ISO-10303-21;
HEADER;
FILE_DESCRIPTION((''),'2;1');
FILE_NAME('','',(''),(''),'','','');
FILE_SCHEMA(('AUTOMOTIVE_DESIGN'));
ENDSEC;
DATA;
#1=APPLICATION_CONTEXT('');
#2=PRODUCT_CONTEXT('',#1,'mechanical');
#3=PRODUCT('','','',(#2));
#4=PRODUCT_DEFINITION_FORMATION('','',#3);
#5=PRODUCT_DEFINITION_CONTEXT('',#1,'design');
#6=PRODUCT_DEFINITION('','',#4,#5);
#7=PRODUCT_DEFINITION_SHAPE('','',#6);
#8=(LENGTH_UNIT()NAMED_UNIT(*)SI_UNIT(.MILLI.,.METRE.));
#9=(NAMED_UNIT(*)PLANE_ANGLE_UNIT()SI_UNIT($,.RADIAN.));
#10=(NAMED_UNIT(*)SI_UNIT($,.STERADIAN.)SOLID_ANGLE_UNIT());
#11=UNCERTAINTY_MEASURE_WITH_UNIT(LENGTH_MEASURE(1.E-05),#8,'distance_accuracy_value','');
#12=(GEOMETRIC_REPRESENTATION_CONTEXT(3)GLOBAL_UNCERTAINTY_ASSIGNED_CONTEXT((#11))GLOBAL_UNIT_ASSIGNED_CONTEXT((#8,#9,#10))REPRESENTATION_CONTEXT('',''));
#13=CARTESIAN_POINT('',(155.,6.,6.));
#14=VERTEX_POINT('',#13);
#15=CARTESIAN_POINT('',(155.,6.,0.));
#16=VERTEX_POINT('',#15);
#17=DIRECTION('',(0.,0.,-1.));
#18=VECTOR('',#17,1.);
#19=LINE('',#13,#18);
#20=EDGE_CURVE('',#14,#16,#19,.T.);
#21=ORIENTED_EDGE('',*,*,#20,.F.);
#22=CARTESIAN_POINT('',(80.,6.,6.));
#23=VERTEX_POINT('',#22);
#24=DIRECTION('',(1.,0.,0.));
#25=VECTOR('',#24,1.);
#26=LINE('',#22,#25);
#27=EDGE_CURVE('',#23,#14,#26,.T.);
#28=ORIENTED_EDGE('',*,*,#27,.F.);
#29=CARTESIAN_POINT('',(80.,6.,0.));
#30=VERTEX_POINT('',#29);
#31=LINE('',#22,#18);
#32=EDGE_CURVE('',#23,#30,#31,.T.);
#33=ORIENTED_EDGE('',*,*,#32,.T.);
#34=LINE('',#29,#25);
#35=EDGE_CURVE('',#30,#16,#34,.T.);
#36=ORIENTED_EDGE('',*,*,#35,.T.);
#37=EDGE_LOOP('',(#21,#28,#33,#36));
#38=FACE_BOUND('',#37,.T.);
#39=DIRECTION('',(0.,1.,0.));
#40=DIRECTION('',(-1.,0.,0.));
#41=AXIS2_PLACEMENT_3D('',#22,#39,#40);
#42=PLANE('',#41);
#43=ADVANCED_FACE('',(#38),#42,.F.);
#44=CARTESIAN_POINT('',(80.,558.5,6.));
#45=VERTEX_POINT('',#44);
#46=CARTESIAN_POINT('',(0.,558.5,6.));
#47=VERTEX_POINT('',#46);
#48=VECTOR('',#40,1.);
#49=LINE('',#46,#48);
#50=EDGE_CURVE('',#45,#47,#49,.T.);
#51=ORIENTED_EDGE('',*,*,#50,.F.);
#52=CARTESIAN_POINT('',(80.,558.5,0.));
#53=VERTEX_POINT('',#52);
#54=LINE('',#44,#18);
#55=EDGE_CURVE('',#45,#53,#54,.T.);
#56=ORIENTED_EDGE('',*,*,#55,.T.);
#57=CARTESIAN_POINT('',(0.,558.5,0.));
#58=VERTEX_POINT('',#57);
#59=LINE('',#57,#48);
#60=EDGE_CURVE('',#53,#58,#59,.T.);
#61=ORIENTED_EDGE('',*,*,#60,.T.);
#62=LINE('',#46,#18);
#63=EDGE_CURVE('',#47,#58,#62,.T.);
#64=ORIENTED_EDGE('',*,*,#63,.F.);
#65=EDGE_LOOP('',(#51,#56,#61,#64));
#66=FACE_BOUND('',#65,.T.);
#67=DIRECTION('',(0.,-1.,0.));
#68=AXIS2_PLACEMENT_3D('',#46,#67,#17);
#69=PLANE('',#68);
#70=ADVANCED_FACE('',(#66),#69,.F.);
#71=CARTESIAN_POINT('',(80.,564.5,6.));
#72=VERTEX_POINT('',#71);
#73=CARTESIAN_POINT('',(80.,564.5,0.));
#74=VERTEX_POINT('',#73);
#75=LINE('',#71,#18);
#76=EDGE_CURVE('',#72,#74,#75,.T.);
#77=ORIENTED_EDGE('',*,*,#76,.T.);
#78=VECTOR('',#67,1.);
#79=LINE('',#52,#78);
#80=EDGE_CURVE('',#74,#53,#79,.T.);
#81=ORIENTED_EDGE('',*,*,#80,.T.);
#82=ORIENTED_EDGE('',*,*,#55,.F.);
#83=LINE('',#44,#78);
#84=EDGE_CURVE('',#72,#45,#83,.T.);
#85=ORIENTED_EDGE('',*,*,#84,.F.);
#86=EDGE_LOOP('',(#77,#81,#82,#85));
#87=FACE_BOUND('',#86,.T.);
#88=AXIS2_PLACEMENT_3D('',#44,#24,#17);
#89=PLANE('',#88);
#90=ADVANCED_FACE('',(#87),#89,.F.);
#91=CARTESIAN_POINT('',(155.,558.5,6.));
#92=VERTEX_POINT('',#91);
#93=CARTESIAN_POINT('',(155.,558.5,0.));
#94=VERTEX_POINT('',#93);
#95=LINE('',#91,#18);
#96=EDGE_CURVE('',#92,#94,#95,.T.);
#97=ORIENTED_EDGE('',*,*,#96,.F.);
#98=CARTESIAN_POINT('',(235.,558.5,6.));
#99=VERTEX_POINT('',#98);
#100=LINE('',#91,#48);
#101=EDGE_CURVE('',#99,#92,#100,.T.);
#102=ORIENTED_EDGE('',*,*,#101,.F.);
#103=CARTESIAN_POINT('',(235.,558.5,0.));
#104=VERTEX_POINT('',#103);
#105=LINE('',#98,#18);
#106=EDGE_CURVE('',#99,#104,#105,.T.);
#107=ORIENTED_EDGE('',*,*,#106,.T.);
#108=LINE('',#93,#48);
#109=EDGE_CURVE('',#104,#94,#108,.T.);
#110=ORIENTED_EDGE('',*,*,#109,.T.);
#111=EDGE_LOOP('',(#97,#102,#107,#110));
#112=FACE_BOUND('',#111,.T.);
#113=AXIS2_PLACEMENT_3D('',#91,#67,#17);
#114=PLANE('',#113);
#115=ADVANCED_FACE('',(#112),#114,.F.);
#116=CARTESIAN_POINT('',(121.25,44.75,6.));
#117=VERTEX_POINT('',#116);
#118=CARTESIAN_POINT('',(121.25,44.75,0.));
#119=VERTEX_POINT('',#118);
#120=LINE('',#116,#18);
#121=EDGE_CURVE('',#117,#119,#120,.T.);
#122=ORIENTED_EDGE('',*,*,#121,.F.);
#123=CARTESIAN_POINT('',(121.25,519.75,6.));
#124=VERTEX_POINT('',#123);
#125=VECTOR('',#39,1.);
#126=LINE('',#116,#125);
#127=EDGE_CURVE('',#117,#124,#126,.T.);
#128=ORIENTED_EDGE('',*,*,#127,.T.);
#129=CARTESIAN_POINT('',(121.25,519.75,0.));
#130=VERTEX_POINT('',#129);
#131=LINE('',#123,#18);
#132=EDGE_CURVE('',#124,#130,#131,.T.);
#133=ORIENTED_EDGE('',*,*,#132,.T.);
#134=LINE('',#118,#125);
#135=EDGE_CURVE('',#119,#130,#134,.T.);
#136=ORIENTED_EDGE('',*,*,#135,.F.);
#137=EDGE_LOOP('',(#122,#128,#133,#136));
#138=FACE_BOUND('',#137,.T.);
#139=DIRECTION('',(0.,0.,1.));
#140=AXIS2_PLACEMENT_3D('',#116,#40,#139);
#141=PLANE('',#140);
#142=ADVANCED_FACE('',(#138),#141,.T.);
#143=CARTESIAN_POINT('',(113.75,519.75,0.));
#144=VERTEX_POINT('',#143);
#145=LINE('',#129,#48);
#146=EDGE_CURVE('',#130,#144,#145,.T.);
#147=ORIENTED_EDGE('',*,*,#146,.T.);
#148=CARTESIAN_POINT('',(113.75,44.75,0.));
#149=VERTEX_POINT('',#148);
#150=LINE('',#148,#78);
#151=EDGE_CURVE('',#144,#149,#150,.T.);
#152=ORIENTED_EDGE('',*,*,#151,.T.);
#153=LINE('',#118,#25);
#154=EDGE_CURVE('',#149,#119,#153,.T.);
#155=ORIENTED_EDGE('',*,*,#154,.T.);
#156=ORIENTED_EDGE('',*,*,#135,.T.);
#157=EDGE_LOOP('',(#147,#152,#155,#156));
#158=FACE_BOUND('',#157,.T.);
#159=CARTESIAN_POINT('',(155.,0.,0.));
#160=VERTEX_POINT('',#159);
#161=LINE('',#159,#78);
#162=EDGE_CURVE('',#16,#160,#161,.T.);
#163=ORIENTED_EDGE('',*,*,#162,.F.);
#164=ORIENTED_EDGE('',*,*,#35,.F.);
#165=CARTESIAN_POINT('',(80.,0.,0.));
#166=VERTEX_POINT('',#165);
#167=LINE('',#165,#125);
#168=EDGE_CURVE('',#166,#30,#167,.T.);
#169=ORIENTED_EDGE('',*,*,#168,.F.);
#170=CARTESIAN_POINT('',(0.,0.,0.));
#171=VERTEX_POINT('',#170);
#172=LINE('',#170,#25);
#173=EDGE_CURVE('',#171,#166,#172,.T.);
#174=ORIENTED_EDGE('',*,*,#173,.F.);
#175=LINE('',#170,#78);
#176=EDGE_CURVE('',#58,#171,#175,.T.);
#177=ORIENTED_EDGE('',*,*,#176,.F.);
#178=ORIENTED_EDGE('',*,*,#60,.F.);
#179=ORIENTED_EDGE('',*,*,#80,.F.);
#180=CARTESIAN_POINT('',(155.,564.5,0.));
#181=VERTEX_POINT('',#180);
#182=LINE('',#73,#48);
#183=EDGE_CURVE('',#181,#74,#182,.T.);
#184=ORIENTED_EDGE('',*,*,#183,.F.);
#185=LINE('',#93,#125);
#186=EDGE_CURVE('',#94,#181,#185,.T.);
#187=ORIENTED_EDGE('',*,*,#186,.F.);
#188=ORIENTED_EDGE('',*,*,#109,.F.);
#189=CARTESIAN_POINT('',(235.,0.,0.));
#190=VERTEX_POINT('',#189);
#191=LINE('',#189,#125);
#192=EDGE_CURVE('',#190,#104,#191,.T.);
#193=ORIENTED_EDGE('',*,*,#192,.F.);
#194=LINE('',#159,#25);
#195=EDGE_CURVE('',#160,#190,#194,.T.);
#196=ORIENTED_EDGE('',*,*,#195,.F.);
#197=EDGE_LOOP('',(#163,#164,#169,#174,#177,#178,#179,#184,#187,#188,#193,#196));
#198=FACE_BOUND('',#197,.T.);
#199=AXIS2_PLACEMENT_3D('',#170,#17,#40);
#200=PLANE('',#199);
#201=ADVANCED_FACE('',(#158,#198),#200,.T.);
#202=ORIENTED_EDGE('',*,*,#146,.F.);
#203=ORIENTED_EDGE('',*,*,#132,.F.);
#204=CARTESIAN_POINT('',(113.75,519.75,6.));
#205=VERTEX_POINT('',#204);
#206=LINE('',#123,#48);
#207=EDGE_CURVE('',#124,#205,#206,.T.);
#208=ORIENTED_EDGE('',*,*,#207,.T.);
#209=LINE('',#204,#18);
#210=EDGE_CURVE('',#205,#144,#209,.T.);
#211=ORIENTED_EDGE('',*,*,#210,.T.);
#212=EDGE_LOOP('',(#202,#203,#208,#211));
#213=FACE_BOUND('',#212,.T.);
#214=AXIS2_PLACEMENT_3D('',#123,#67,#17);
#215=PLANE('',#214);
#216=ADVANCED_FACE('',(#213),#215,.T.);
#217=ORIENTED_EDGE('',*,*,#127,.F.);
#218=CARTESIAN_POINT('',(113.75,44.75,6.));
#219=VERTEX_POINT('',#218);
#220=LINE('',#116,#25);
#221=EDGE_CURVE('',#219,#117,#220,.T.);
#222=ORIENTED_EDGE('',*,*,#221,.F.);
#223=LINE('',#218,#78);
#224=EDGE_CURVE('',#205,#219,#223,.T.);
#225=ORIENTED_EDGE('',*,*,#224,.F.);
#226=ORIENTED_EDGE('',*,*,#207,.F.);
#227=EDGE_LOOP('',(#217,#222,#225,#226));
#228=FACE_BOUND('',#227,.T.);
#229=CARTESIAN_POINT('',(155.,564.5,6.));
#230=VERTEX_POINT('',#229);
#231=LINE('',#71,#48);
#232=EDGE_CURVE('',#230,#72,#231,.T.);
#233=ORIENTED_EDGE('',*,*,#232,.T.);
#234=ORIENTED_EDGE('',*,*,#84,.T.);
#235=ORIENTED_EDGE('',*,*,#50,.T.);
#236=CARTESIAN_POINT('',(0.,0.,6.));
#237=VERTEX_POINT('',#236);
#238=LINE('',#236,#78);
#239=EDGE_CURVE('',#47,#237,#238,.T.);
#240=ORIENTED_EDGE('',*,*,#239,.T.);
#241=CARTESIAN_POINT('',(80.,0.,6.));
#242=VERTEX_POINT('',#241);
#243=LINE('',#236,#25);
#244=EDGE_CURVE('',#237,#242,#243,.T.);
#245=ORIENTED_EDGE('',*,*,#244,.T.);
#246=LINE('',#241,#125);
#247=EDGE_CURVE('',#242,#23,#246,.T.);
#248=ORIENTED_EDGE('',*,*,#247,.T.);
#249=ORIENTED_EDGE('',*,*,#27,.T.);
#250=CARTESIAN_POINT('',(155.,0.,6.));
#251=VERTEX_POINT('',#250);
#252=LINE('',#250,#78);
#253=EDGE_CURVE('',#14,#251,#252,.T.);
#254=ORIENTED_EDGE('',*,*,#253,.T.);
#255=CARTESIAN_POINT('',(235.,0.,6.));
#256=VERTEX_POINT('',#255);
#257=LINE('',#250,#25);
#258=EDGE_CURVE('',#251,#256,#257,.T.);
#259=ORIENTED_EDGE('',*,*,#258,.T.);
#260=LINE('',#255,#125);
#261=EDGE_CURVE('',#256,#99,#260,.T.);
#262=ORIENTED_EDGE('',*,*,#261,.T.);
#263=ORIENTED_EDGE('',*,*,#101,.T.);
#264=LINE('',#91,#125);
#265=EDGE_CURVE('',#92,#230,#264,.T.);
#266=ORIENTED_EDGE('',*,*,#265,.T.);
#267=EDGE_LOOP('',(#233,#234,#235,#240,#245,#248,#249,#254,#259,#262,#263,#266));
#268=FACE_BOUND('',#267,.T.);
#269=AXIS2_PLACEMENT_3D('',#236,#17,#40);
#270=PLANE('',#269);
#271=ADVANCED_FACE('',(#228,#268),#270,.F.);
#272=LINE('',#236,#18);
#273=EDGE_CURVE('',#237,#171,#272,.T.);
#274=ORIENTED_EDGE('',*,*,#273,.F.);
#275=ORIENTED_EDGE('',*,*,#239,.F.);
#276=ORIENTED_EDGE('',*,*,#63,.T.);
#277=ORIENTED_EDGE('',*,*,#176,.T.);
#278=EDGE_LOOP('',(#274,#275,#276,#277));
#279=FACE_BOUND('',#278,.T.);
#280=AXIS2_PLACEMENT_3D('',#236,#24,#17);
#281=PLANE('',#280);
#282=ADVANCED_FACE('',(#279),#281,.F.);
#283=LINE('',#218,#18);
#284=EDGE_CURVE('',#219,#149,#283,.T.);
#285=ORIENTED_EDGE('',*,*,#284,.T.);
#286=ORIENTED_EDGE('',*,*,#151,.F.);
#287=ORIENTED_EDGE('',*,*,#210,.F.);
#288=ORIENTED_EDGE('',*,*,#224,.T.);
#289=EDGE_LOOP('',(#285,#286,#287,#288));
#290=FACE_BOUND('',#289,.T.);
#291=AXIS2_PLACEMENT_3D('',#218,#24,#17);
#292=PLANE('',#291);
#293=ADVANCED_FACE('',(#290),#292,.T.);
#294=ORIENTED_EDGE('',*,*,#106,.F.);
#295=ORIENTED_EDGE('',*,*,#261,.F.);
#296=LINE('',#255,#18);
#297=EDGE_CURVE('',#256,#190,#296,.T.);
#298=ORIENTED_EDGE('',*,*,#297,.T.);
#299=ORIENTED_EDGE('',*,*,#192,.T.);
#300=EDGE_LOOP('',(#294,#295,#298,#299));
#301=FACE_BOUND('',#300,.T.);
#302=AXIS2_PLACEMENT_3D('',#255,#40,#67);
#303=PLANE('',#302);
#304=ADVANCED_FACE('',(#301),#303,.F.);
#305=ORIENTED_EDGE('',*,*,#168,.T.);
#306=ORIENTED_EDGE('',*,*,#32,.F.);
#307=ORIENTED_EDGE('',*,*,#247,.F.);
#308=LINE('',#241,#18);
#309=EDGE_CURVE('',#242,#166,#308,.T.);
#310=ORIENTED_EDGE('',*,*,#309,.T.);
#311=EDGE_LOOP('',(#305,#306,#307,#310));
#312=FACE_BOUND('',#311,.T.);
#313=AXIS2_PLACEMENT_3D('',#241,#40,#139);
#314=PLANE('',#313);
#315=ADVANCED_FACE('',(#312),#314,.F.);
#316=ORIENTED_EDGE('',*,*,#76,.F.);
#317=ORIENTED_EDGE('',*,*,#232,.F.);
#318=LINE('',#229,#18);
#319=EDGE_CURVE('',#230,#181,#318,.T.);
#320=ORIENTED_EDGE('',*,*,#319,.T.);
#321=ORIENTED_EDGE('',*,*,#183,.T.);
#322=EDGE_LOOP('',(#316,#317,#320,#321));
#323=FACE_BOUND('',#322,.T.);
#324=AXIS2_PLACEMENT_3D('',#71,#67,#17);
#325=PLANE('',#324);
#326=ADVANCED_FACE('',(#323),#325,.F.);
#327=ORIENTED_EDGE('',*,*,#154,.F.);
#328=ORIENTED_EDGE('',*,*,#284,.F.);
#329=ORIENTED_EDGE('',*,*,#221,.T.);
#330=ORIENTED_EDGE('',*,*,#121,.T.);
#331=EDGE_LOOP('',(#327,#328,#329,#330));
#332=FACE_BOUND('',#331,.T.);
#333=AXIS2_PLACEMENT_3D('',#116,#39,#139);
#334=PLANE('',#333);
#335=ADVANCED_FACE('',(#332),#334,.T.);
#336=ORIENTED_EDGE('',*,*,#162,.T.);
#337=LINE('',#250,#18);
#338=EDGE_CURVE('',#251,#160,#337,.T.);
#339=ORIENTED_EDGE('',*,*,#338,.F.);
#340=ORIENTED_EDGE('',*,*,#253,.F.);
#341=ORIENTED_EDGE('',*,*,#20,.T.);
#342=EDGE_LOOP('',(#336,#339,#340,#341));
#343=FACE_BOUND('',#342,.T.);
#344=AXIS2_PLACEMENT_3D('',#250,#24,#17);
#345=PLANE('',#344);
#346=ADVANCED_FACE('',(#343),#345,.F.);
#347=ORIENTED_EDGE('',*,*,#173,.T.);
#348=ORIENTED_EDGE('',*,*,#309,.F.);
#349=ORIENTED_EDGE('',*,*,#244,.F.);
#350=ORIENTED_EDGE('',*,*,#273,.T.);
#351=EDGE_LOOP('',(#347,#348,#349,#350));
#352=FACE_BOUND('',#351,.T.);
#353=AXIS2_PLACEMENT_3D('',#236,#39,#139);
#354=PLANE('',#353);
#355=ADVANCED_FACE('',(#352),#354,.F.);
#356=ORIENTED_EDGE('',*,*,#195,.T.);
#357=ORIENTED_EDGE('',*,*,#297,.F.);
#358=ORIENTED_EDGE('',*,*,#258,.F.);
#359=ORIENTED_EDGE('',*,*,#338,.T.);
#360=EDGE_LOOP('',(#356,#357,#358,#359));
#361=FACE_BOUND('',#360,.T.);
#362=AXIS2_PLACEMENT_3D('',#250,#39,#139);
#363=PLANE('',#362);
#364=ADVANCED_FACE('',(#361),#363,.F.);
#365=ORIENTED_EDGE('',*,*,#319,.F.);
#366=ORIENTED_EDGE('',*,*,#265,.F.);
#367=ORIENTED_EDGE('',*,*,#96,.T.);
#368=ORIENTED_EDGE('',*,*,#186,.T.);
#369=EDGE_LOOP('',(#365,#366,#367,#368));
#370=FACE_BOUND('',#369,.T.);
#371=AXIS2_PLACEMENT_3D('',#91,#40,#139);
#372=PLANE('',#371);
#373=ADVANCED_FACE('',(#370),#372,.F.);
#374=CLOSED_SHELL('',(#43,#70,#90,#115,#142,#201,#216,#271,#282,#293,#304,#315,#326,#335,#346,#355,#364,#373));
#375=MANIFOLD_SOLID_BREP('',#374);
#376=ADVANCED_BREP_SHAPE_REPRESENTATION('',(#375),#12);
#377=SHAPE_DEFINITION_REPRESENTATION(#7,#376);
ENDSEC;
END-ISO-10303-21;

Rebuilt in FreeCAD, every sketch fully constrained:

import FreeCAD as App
import Part
import Sketcher

V = App.Vector


def add_polygon(sketch, points):
    """Adds a closed chain of lines whose ends are joined by coincident constraints."""
    first, n = sketch.GeometryCount, len(points)
    for a, b in zip(points, points[1:] + points[:1]):
        sketch.addGeometry(Part.LineSegment(App.Vector(*a, 0), App.Vector(*b, 0)), False)
    for i in range(n):
        sketch.addConstraint(Sketcher.Constraint("Coincident", first + i, 2, first + (i + 1) % n, 1))

doc = App.newDocument("Part")
body = doc.addObject("PartDesign::Body", "Body")

# Sketch on XY plane
sketch1 = body.newObject("Sketcher::SketchObject", "Sketch")
sketch1.AttachmentSupport = (doc.getObject("XY_Plane"), [""])
sketch1.MapMode = "FlatFace"
add_polygon(sketch1, [(155, 0), (235, 0), (235, 558.5), (155, 558.5), (155, 564.5), (80, 564.5), (80, 558.5), (0, 558.5), (0, 0), (80, 0), (80, 6), (155, 6)])  # lines 0-11
add_polygon(sketch1, [(121.25, 44.75), (113.75, 44.75), (113.75, 519.75), (121.25, 519.75)])  # lines 12-15
sketch1.addConstraint([
    Sketcher.Constraint("Horizontal", 0),
    Sketcher.Constraint("Vertical", 1),
    Sketcher.Constraint("Horizontal", 2),
    Sketcher.Constraint("Vertical", 3),
    Sketcher.Constraint("Horizontal", 4),
    Sketcher.Constraint("Vertical", 5),
    Sketcher.Constraint("Horizontal", 6),
    Sketcher.Constraint("Vertical", 7),
    Sketcher.Constraint("Horizontal", 8),
    Sketcher.Constraint("Vertical", 9),
    Sketcher.Constraint("Horizontal", 10),
    Sketcher.Constraint("Vertical", 11),
    Sketcher.Constraint("Horizontal", 12),
    Sketcher.Constraint("Vertical", 13),
    Sketcher.Constraint("Horizontal", 14),
    Sketcher.Constraint("Vertical", 15),
    Sketcher.Constraint("Coincident", 7, 2, -1, 1),
    Sketcher.Constraint("PointOnObject", 0, 2, -1),
    Sketcher.Constraint("Horizontal", 2, 2, 5, 2),
    Sketcher.Constraint("Vertical", 5, 2, 8, 2),
    Sketcher.Constraint("Vertical", 3, 2, 10, 2),
    Sketcher.Constraint("Equal", 2, 6),
    Sketcher.Constraint("Equal", 5, 9),
    Sketcher.Constraint("DistanceX", 0, 1, 0, 2, 80.0),
    Sketcher.Constraint("DistanceX", 4, 2, 4, 1, 75.0),
    Sketcher.Constraint("DistanceY", 3, 1, 3, 2, 6.0),
    Sketcher.Constraint("DistanceY", 13, 1, 13, 2, 475.0),
    Sketcher.Constraint("DistanceX", 12, 2, 12, 1, 7.5),
    Sketcher.Constraint("DistanceY", 1, 1, 1, 2, 558.5),
    Sketcher.Constraint("DistanceX", -1, 1, 12, 2, 113.75),
    Sketcher.Constraint("DistanceY", -1, 1, 12, 2, 44.75),
])
pad1 = body.newObject("PartDesign::Pad", "Pad")
pad1.Profile = sketch1
pad1.Length = 6

doc.recompute()
